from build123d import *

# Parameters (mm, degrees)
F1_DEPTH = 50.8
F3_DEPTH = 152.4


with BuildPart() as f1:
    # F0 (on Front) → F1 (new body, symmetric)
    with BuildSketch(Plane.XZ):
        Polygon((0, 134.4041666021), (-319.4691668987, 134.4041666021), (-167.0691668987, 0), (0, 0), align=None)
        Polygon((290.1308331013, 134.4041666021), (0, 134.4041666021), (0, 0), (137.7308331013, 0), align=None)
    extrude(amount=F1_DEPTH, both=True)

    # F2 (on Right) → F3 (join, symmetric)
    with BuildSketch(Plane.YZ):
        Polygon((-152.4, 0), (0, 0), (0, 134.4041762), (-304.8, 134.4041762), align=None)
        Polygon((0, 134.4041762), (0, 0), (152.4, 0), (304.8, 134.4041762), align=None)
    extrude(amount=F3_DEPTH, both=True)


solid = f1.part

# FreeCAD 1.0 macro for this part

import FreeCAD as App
import Part
import Sketcher

V = App.Vector
Q = App.Units.Quantity


def add_polygon(sketch, points):
    """Adds a closed chain of lines whose ends are joined by coincident constraints."""
    first, n = sketch.GeometryCount, len(points)
    for a, b in zip(points, points[1:] + points[:1]):
        sketch.addGeometry(Part.LineSegment(App.Vector(*a, 0), App.Vector(*b, 0)), False)
    for i in range(n):
        sketch.addConstraint(Sketcher.Constraint("Coincident", first + i, 2, first + (i + 1) % n, 1))

doc = App.newDocument("Part")
body = doc.addObject("PartDesign::Body", "Body")

# Sketch on XZ plane
sketch1 = doc.addObject("Sketcher::SketchObject", "Sketch")
body.addObject(sketch1)
sketch1.AttachmentSupport = (doc.XZ_Plane, [""])
sketch1.MapMode = "FlatFace"
add_polygon(sketch1, [(-319.469167, 134.404167), (-167.069167, 0), (137.730833, 0), (290.130833, 134.404167)])  # lines 0-3
sketch1.addConstraint(Sketcher.Constraint("Horizontal", 1))
sketch1.addConstraint(Sketcher.Constraint("Horizontal", 3))
sketch1.addConstraint(Sketcher.Constraint("PointOnObject", 0, 2, -1))
sketch1.addConstraint(Sketcher.Constraint("Equal", 0, 2))
sketch1.addConstraint(Sketcher.Constraint("DistanceX", 1, 1, 1, 2, Q("12 in")))
sketch1.addConstraint(Sketcher.Constraint("DistanceX", 3, 2, 3, 1, Q("24 in")))
sketch1.addConstraint(Sketcher.Constraint("Distance", 0, Q("8 in")))
sketch1.addConstraint(Sketcher.Constraint("DistanceX", 0, 2, -1, 1, Q("167.069167 mm")))
pad1 = doc.addObject("PartDesign::Pad", "Pad")
body.addObject(pad1)
pad1.Profile = sketch1
pad1.Length = Q("4 in")
pad1.Midplane = True

# Sketch on YZ plane
sketch2 = doc.addObject("Sketcher::SketchObject", "Sketch001")
body.addObject(sketch2)
sketch2.AttachmentSupport = (doc.YZ_Plane, [""])
sketch2.MapMode = "FlatFace"
add_polygon(sketch2, [(-152.4, 0), (152.4, 0), (304.8, 134.404176), (-304.8, 134.404176)])  # lines 0-3
sketch2.addConstraint(Sketcher.Constraint("Horizontal", 0))
sketch2.addConstraint(Sketcher.Constraint("Horizontal", 2))
sketch2.addConstraint(Sketcher.Constraint("Symmetric", 0, 2, 3, 2, -1, 1))
sketch2.addConstraint(Sketcher.Constraint("Equal", 1, 3))
sketch2.addConstraint(Sketcher.Constraint("DistanceX", 0, 1, 0, 2, Q("12 in")))
sketch2.addConstraint(Sketcher.Constraint("DistanceX", 2, 2, 2, 1, Q("24 in")))
sketch2.addConstraint(Sketcher.Constraint("Distance", 1, Q("203.200006 mm")))
pad2 = doc.addObject("PartDesign::Pad", "Pad001")
body.addObject(pad2)
pad2.Profile = sketch2
pad2.Length = Q("12 in")
pad2.Midplane = True

doc.recompute()
